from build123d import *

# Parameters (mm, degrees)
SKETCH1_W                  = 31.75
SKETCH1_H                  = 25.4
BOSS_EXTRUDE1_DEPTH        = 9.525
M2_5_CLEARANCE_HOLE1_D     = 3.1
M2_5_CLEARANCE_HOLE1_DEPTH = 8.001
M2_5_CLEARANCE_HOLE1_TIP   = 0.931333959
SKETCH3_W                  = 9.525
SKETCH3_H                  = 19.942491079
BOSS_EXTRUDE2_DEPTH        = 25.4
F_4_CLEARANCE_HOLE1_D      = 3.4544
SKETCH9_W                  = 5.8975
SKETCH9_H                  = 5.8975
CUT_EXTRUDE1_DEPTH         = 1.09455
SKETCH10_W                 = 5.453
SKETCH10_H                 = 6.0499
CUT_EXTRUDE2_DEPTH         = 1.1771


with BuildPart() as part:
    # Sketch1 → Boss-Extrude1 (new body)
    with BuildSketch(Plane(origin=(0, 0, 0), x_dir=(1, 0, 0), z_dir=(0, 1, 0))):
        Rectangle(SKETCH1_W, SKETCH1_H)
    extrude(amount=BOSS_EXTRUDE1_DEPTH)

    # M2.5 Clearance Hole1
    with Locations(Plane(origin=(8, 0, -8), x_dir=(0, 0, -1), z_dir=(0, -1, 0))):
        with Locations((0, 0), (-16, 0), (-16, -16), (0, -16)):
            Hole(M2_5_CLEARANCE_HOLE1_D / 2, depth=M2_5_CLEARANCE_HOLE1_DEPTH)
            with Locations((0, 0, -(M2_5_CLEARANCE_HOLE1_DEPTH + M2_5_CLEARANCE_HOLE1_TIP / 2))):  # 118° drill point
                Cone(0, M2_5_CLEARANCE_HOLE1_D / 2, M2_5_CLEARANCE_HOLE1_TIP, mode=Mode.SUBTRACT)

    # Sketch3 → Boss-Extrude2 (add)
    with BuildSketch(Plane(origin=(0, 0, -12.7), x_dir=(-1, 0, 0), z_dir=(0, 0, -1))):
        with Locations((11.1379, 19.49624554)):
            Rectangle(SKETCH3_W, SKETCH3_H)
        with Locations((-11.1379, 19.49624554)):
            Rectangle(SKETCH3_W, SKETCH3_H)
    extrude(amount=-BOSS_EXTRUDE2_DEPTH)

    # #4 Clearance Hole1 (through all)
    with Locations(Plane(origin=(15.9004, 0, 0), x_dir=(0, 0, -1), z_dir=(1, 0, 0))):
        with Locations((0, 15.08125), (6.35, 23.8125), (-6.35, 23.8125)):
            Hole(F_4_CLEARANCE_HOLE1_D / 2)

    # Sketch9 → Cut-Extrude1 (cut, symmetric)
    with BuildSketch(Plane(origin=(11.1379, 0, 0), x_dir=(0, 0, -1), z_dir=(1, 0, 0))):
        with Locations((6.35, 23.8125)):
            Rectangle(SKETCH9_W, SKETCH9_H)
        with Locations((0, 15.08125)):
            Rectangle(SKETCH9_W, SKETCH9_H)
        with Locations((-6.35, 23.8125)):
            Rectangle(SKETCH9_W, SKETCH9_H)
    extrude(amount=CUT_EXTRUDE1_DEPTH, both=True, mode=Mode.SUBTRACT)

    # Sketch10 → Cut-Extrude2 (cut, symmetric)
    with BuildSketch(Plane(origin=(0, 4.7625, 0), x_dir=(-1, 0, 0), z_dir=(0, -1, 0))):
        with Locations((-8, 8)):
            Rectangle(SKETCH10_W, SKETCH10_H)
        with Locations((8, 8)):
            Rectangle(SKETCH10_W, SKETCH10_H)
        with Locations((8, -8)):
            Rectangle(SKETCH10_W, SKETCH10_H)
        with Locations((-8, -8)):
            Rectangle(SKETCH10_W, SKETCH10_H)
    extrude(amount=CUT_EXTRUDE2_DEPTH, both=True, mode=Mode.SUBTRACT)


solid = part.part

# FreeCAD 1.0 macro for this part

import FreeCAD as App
import Part
import Sketcher
Q = App.Units.Quantity

doc = App.newDocument("Part")
body = doc.addObject("PartDesign::Body", "Body")

# Sketch on XZ plane
sketch1 = doc.addObject("Sketcher::SketchObject", "Sketch")
body.addObject(sketch1)
sketch1.AttachmentSupport = (doc.XZ_Plane, [""])
sketch1.MapMode = "FlatFace"
sketch1.addGeometry([
    Part.LineSegment(App.Vector(-16, -13, 0), App.Vector(-16, 13, 0)),
    Part.LineSegment(App.Vector(-16, 13, 0), App.Vector(16, 13, 0)),
    Part.LineSegment(App.Vector(16, 13, 0), App.Vector(16, -13, 0)),
    Part.LineSegment(App.Vector(16, -13, 0), App.Vector(-16, -13, 0)),
], False)
sketch1.addConstraint([
    Sketcher.Constraint("Coincident", 0, 2, 1, 1),
    Sketcher.Constraint("Coincident", 1, 2, 2, 1),
    Sketcher.Constraint("Coincident", 2, 2, 3, 1),
    Sketcher.Constraint("Coincident", 3, 2, 0, 1),
    Sketcher.Constraint("Vertical", 0),
    Sketcher.Constraint("Horizontal", 1),
    Sketcher.Constraint("Vertical", 2),
    Sketcher.Constraint("Horizontal", 3),
    Sketcher.Constraint("Symmetric", 0, 2, 2, 2, -1, 1),
    Sketcher.Constraint("DistanceY", 0, 1, 0, 2, Q("1 in")),
    Sketcher.Constraint("DistanceX", 1, 1, 1, 2, Q("1.25 in")),
])
pad1 = doc.addObject("PartDesign::Pad", "Pad")
body.addObject(pad1)
pad1.Profile = sketch1
pad1.Length = Q("0.375 in")
pad1.Reversed = True

# Sketch on XZ plane
sketch2 = doc.addObject("Sketcher::SketchObject", "Sketch001")
body.addObject(sketch2)
sketch2.AttachmentSupport = (doc.XZ_Plane, [""])
sketch2.MapMode = "FlatFace"
sketch2.addGeometry([
    Part.Circle(App.Vector(8, -8, 0), App.Vector(0, 0, 1), 1.6),
    Part.Circle(App.Vector(8, 8, 0), App.Vector(0, 0, 1), 1.6),
    Part.Circle(App.Vector(-8, 8, 0), App.Vector(0, 0, 1), 1.6),
    Part.Circle(App.Vector(-8, -8, 0), App.Vector(0, 0, 1), 1.6),
], False)
sketch2.addConstraint([
    Sketcher.Constraint("Equal", 0, 1),
    Sketcher.Constraint("Equal", 1, 2),
    Sketcher.Constraint("Equal", 2, 3),
    Sketcher.Constraint("Symmetric", 0, 3, 2, 3, -1, 1),
    Sketcher.Constraint("Symmetric", 1, 3, 3, 3, -1, 1),
    Sketcher.Constraint("Symmetric", 1, 3, 2, 3, -2),
    Sketcher.Constraint("Diameter", 0, Q("3.1 mm")),
    Sketcher.Constraint("DistanceX", -1, 1, 0, 3, Q("8 mm")),
    Sketcher.Constraint("DistanceY", 0, 3, -1, 1, Q("8 mm")),
])
doc.recompute()
hole = doc.addObject("PartDesign::Hole", "Hole")
body.addObject(hole)
hole.Profile = sketch2
hole.ThreadType = "None"
hole.Diameter = 3.1
hole.DepthType = "Dimension"
hole.Depth = Q("0.315 in")
hole.DrillPoint = "Angled"
hole.DrillPointAngle = 118

# Sketch on XY plane
sketch3 = doc.addObject("Sketcher::SketchObject", "Sketch002")
body.addObject(sketch3)
sketch3.AttachmentSupport = (doc.XY_Plane, [""])
sketch3.MapMode = "FlatFace"
sketch3.AttachmentOffset = App.Placement(App.Vector(0, 0, -0.5 * 25.4), App.Rotation())
sketch3.addGeometry([
    Part.LineSegment(App.Vector(-6, 29, 0), App.Vector(-6, 10, 0)),  # 0
    Part.LineSegment(App.Vector(-6, 10, 0), App.Vector(-16, 10, 0)),  # 1
    Part.LineSegment(App.Vector(-16, 10, 0), App.Vector(-16, 29, 0)),  # 2
    Part.LineSegment(App.Vector(-16, 29, 0), App.Vector(-6, 29, 0)),  # 3
    Part.LineSegment(App.Vector(16, 29, 0), App.Vector(16, 10, 0)),  # 4
    Part.LineSegment(App.Vector(16, 10, 0), App.Vector(6, 10, 0)),  # 5
    Part.LineSegment(App.Vector(6, 10, 0), App.Vector(6, 29, 0)),  # 6
    Part.LineSegment(App.Vector(6, 29, 0), App.Vector(16, 29, 0)),  # 7
], False)
sketch3.addConstraint([
    Sketcher.Constraint("Coincident", 0, 2, 1, 1),
    Sketcher.Constraint("Coincident", 1, 2, 2, 1),
    Sketcher.Constraint("Coincident", 2, 2, 3, 1),
    Sketcher.Constraint("Coincident", 3, 2, 0, 1),
    Sketcher.Constraint("Coincident", 4, 2, 5, 1),
    Sketcher.Constraint("Coincident", 5, 2, 6, 1),
    Sketcher.Constraint("Coincident", 6, 2, 7, 1),
    Sketcher.Constraint("Coincident", 7, 2, 4, 1),
    Sketcher.Constraint("Vertical", 0),
    Sketcher.Constraint("Horizontal", 1),
    Sketcher.Constraint("Vertical", 2),
    Sketcher.Constraint("Horizontal", 3),
    Sketcher.Constraint("Vertical", 4),
    Sketcher.Constraint("Horizontal", 5),
    Sketcher.Constraint("Vertical", 6),
    Sketcher.Constraint("Horizontal", 7),
    Sketcher.Constraint("Symmetric", 1, 2, 4, 2, -2),
    Sketcher.Constraint("Symmetric", 3, 2, 6, 2, -2),
    Sketcher.Constraint("DistanceX", 1, 2, 1, 1, Q("0.375 in")),
    Sketcher.Constraint("DistanceX", 0, 2, -1, 1, Q("0.251 in")),
    Sketcher.Constraint("DistanceY", -1, 1, 0, 2, Q("0.375 in")),
    Sketcher.Constraint("DistanceY", 0, 2, 0, 1, Q("19.942491 mm")),
])
pad2 = doc.addObject("PartDesign::Pad", "Pad001")
body.addObject(pad2)
pad2.Profile = sketch3
pad2.Length = Q("1 in")

# Sketch on YZ plane
sketch4 = doc.addObject("Sketcher::SketchObject", "Sketch003")
body.addObject(sketch4)
sketch4.AttachmentSupport = (doc.YZ_Plane, [""])
sketch4.MapMode = "FlatFace"
sketch4.AttachmentOffset = App.Placement(App.Vector(0, 0, 0.626 * 25.4), App.Rotation())
sketch4.addGeometry([
    Part.Circle(App.Vector(15.1, 0, 0), App.Vector(0, 0, 1), 1.7),
    Part.Circle(App.Vector(23.8, -6.3, 0), App.Vector(0, 0, 1), 1.7),
    Part.Circle(App.Vector(23.8, 6.3, 0), App.Vector(0, 0, 1), 1.7),
], False)
sketch4.addConstraint([
    Sketcher.Constraint("Equal", 0, 1),
    Sketcher.Constraint("Equal", 1, 2),
    Sketcher.Constraint("Symmetric", 1, 3, 2, 3, -1),
    Sketcher.Constraint("PointOnObject", 0, 3, -1),
    Sketcher.Constraint("Diameter", 0, Q("0.136 in")),
    Sketcher.Constraint("DistanceY", 1, 3, 2, 3, Q("0.5 in")),
    Sketcher.Constraint("DistanceX", -1, 1, 0, 3, Q("0.59375 in")),
    Sketcher.Constraint("DistanceX", -1, 1, 1, 3, Q("0.9375 in")),
])
doc.recompute()
hole2 = doc.addObject("PartDesign::Hole", "Hole001")
body.addObject(hole2)
hole2.Profile = sketch4
hole2.ThreadType = "None"
hole2.Diameter = Q("0.136 in")
hole2.DepthType = "ThroughAll"

# Sketch on YZ plane
sketch5 = doc.addObject("Sketcher::SketchObject", "Sketch004")
body.addObject(sketch5)
sketch5.AttachmentSupport = (doc.YZ_Plane, [""])
sketch5.MapMode = "FlatFace"
sketch5.AttachmentOffset = App.Placement(App.Vector(0, 0, 0.4385 * 25.4), App.Rotation())
sketch5.addGeometry([
    Part.LineSegment(App.Vector(27, -3, 0), App.Vector(21, -3, 0)),  # 0
    Part.LineSegment(App.Vector(21, -3, 0), App.Vector(21, -9, 0)),  # 1
    Part.LineSegment(App.Vector(21, -9, 0), App.Vector(27, -9, 0)),  # 2
    Part.LineSegment(App.Vector(27, -9, 0), App.Vector(27, -3, 0)),  # 3
    Part.LineSegment(App.Vector(18, 3, 0), App.Vector(12, 3, 0)),  # 4
    Part.LineSegment(App.Vector(12, 3, 0), App.Vector(12, -3, 0)),  # 5
    Part.LineSegment(App.Vector(12, -3, 0), App.Vector(18, -3, 0)),  # 6
    Part.LineSegment(App.Vector(18, -3, 0), App.Vector(18, 3, 0)),  # 7
    Part.LineSegment(App.Vector(27, 9, 0), App.Vector(21, 9, 0)),  # 8
    Part.LineSegment(App.Vector(21, 9, 0), App.Vector(21, 3, 0)),  # 9
    Part.LineSegment(App.Vector(21, 3, 0), App.Vector(27, 3, 0)),  # 10
    Part.LineSegment(App.Vector(27, 3, 0), App.Vector(27, 9, 0)),  # 11
], False)
sketch5.addConstraint([
    Sketcher.Constraint("Coincident", 0, 2, 1, 1),
    Sketcher.Constraint("Coincident", 1, 2, 2, 1),
    Sketcher.Constraint("Coincident", 2, 2, 3, 1),
    Sketcher.Constraint("Coincident", 3, 2, 0, 1),
    Sketcher.Constraint("Coincident", 4, 2, 5, 1),
    Sketcher.Constraint("Coincident", 5, 2, 6, 1),
    Sketcher.Constraint("Coincident", 6, 2, 7, 1),
    Sketcher.Constraint("Coincident", 7, 2, 4, 1),
    Sketcher.Constraint("Coincident", 8, 2, 9, 1),
    Sketcher.Constraint("Coincident", 9, 2, 10, 1),
    Sketcher.Constraint("Coincident", 10, 2, 11, 1),
    Sketcher.Constraint("Coincident", 11, 2, 8, 1),
    Sketcher.Constraint("Horizontal", 0),
    Sketcher.Constraint("Vertical", 1),
    Sketcher.Constraint("Horizontal", 2),
    Sketcher.Constraint("Vertical", 3),
    Sketcher.Constraint("Horizontal", 4),
    Sketcher.Constraint("Vertical", 5),
    Sketcher.Constraint("Horizontal", 6),
    Sketcher.Constraint("Vertical", 7),
    Sketcher.Constraint("Horizontal", 8),
    Sketcher.Constraint("Vertical", 9),
    Sketcher.Constraint("Horizontal", 10),
    Sketcher.Constraint("Vertical", 11),
    Sketcher.Constraint("Symmetric", 1, 2, 8, 2, -1),
    Sketcher.Constraint("Symmetric", 3, 2, 10, 2, -1),
    Sketcher.Constraint("Equal", 2, 4),
    Sketcher.Constraint("Equal", 10, 1),
    Sketcher.Constraint("Equal", 3, 5),
    Sketcher.Constraint("DistanceY", 0, 2, 8, 2, Q("0.5 in")),
    Sketcher.Constraint("DistanceY", 0, 2, 4, 2, Q("0.25 in")),
    Sketcher.Constraint("DistanceX", 4, 2, 0, 2, Q("0.34375 in")),
    Sketcher.Constraint("DistanceX", 0, 2, 0, 1, Q("5.8975 mm")),
    Sketcher.Constraint("DistanceX", -1, 1, 4, 2, Q("12.1325 mm")),
])
pocket1 = doc.addObject("PartDesign::Pocket", "Pocket")
body.addObject(pocket1)
pocket1.Profile = sketch5
pocket1.Length = 2.1891
pocket1.Midplane = True

# Sketch on XZ plane
sketch6 = doc.addObject("Sketcher::SketchObject", "Sketch005")
body.addObject(sketch6)
sketch6.AttachmentSupport = (doc.XZ_Plane, [""])
sketch6.MapMode = "FlatFace"
sketch6.AttachmentOffset = App.Placement(App.Vector(0, 0, -0.1875 * 25.4), App.Rotation())
sketch6.addGeometry([
    Part.LineSegment(App.Vector(11, -11, 0), App.Vector(11, -5, 0)),  # 0
    Part.LineSegment(App.Vector(11, -5, 0), App.Vector(5, -5, 0)),  # 1
    Part.LineSegment(App.Vector(5, -5, 0), App.Vector(5, -11, 0)),  # 2
    Part.LineSegment(App.Vector(5, -11, 0), App.Vector(11, -11, 0)),  # 3
    Part.LineSegment(App.Vector(-5, -11, 0), App.Vector(-5, -5, 0)),  # 4
    Part.LineSegment(App.Vector(-5, -5, 0), App.Vector(-11, -5, 0)),  # 5
    Part.LineSegment(App.Vector(-11, -5, 0), App.Vector(-11, -11, 0)),  # 6
    Part.LineSegment(App.Vector(-11, -11, 0), App.Vector(-5, -11, 0)),  # 7
    Part.LineSegment(App.Vector(-5, 5, 0), App.Vector(-5, 11, 0)),  # 8
    Part.LineSegment(App.Vector(-5, 11, 0), App.Vector(-11, 11, 0)),  # 9
    Part.LineSegment(App.Vector(-11, 11, 0), App.Vector(-11, 5, 0)),  # 10
    Part.LineSegment(App.Vector(-11, 5, 0), App.Vector(-5, 5, 0)),  # 11
    Part.LineSegment(App.Vector(11, 5, 0), App.Vector(11, 11, 0)),  # 12
    Part.LineSegment(App.Vector(11, 11, 0), App.Vector(5, 11, 0)),  # 13
    Part.LineSegment(App.Vector(5, 11, 0), App.Vector(5, 5, 0)),  # 14
    Part.LineSegment(App.Vector(5, 5, 0), App.Vector(11, 5, 0)),  # 15
], False)
sketch6.addConstraint([
    Sketcher.Constraint("Coincident", 0, 2, 1, 1),
    Sketcher.Constraint("Coincident", 1, 2, 2, 1),
    Sketcher.Constraint("Coincident", 2, 2, 3, 1),
    Sketcher.Constraint("Coincident", 3, 2, 0, 1),
    Sketcher.Constraint("Coincident", 4, 2, 5, 1),
    Sketcher.Constraint("Coincident", 5, 2, 6, 1),
    Sketcher.Constraint("Coincident", 6, 2, 7, 1),
    Sketcher.Constraint("Coincident", 7, 2, 4, 1),
    Sketcher.Constraint("Coincident", 8, 2, 9, 1),
    Sketcher.Constraint("Coincident", 9, 2, 10, 1),
    Sketcher.Constraint("Coincident", 10, 2, 11, 1),
    Sketcher.Constraint("Coincident", 11, 2, 8, 1),
    Sketcher.Constraint("Coincident", 12, 2, 13, 1),
    Sketcher.Constraint("Coincident", 13, 2, 14, 1),
    Sketcher.Constraint("Coincident", 14, 2, 15, 1),
    Sketcher.Constraint("Coincident", 15, 2, 12, 1),
    Sketcher.Constraint("Vertical", 0),
    Sketcher.Constraint("Horizontal", 1),
    Sketcher.Constraint("Vertical", 2),
    Sketcher.Constraint("Horizontal", 3),
    Sketcher.Constraint("Vertical", 4),
    Sketcher.Constraint("Horizontal", 5),
    Sketcher.Constraint("Vertical", 6),
    Sketcher.Constraint("Horizontal", 7),
    Sketcher.Constraint("Vertical", 8),
    Sketcher.Constraint("Horizontal", 9),
    Sketcher.Constraint("Vertical", 10),
    Sketcher.Constraint("Horizontal", 11),
    Sketcher.Constraint("Vertical", 12),
    Sketcher.Constraint("Horizontal", 13),
    Sketcher.Constraint("Vertical", 14),
    Sketcher.Constraint("Horizontal", 15),
    Sketcher.Constraint("Symmetric", 2, 2, 8, 2, -1, 1),
    Sketcher.Constraint("Symmetric", 0, 2, 10, 2, -1, 1),
    Sketcher.Constraint("Symmetric", 6, 2, 12, 2, -1, 1),
    Sketcher.Constraint("Symmetric", 4, 2, 14, 2, -1, 1),
    Sketcher.Constraint("Symmetric", 1, 2, 4, 2, -2),
    Sketcher.Constraint("Symmetric", 3, 2, 6, 2, -2),
    Sketcher.Constraint("DistanceX", 1, 2, 1, 1, Q("5.453 mm")),
    Sketcher.Constraint("DistanceY", 0, 1, 0, 2, Q("6.0499 mm")),
    Sketcher.Constraint("DistanceX", -1, 1, 0, 2, Q("10.7265 mm")),
    Sketcher.Constraint("DistanceY", 4, 2, 8, 2, Q("16 mm")),
])
pocket2 = doc.addObject("PartDesign::Pocket", "Pocket001")
body.addObject(pocket2)
pocket2.Profile = sketch6
pocket2.Length = 2.3542
pocket2.Midplane = True

doc.recompute()
